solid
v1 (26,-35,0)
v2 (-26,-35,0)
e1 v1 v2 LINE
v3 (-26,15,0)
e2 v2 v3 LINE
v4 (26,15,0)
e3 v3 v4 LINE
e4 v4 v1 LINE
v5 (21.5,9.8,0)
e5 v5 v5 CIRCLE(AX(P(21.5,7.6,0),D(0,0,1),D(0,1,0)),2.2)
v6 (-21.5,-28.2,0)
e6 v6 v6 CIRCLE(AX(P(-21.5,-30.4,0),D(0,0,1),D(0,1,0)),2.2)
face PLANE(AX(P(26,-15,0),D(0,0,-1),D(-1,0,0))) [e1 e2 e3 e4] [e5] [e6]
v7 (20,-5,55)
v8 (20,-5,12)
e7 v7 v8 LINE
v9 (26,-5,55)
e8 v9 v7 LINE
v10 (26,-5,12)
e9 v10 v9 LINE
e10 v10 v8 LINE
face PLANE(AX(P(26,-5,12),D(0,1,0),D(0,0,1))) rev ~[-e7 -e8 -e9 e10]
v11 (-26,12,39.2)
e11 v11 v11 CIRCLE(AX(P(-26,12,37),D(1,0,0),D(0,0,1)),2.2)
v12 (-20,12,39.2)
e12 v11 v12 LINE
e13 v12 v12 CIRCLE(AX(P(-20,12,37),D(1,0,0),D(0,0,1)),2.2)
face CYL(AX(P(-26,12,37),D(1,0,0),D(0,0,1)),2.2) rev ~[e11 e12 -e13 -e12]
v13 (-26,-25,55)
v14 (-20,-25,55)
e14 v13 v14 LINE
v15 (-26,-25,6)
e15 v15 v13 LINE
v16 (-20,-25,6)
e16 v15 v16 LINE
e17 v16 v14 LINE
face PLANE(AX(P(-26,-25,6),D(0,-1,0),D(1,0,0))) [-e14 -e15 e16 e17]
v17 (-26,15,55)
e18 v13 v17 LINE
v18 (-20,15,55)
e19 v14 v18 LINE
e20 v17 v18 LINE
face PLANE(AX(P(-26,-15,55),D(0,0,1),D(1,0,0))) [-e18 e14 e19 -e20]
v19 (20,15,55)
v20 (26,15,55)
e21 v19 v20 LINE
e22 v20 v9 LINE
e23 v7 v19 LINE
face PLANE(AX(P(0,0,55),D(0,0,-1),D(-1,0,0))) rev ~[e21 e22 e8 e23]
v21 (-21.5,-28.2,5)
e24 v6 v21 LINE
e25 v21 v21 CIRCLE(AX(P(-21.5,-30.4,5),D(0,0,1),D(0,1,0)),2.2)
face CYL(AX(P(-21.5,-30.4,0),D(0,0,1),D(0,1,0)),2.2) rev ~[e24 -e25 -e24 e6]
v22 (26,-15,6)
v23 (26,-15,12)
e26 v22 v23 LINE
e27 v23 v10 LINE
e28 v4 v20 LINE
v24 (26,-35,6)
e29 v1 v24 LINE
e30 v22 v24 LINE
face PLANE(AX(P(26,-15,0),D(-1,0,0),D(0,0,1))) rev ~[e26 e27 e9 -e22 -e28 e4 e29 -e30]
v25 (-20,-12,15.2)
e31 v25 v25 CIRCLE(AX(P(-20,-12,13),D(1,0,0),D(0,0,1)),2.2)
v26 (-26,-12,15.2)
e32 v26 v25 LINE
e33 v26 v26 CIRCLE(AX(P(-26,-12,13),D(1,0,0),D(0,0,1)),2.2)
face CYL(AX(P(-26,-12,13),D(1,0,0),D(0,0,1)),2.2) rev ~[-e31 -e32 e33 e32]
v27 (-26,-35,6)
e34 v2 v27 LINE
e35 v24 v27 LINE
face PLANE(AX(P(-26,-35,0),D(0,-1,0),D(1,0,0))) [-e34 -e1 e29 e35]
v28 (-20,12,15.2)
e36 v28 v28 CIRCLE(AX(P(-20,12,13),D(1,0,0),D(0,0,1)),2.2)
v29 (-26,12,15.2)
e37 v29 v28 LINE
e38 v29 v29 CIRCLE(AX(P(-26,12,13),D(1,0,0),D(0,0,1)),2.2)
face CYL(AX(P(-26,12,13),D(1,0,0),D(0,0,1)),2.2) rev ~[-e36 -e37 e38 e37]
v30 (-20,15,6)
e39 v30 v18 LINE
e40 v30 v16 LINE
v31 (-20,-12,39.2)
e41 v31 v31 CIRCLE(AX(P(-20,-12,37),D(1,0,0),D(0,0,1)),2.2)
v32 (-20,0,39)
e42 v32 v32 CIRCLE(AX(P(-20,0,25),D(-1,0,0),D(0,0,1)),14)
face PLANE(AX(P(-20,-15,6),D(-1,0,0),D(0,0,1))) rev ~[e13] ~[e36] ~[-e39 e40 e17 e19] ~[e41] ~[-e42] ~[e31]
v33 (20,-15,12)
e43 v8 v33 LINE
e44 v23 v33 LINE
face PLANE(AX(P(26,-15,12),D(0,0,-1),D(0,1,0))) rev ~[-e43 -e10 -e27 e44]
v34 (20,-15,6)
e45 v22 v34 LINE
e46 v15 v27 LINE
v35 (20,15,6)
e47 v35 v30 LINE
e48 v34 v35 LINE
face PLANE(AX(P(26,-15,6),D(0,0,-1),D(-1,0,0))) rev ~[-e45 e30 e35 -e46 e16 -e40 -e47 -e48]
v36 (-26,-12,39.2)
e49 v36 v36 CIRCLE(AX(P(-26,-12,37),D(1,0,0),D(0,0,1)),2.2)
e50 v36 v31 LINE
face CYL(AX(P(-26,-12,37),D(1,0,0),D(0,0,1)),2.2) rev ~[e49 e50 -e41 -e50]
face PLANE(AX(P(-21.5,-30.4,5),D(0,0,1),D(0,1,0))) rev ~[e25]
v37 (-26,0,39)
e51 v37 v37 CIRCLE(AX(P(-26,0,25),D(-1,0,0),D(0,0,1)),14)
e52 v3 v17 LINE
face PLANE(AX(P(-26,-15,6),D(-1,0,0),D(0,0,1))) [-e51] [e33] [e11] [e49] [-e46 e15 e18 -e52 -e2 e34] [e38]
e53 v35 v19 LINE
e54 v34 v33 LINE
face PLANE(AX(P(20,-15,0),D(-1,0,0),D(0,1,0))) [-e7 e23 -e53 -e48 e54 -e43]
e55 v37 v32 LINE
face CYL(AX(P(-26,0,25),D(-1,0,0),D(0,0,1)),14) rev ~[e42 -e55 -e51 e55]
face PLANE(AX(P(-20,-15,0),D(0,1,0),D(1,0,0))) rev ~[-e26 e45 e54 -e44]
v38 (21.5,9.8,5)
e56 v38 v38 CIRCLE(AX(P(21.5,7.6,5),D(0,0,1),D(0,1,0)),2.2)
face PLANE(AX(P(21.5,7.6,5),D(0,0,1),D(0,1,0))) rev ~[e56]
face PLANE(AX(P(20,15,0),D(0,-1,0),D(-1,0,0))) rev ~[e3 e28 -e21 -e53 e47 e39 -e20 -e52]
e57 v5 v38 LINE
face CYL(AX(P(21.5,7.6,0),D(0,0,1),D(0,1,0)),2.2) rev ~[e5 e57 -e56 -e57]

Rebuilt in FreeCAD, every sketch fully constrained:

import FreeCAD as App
import Part
import Sketcher


def add_polygon(sketch, points):
    """Adds a closed chain of lines whose ends are joined by coincident constraints."""
    first, n = sketch.GeometryCount, len(points)
    for a, b in zip(points, points[1:] + points[:1]):
        sketch.addGeometry(Part.LineSegment(App.Vector(*a, 0), App.Vector(*b, 0)), False)
    for i in range(n):
        sketch.addConstraint(Sketcher.Constraint("Coincident", first + i, 2, first + (i + 1) % n, 1))

doc = App.newDocument("Part")
body = doc.addObject("PartDesign::Body", "Body")

# Sketch on XY plane
sketch1 = doc.addObject("Sketcher::SketchObject", "Sketch")
body.addObject(sketch1)
sketch1.AttachmentSupport = (doc.XY_Plane, [""])
sketch1.MapMode = "FlatFace"
add_polygon(sketch1, [(-20, 15), (-20, -15), (20, -15), (20, 15)])  # lines 0-3
sketch1.addConstraint([
    Sketcher.Constraint("Vertical", 0),
    Sketcher.Constraint("Horizontal", 1),
    Sketcher.Constraint("Vertical", 2),
    Sketcher.Constraint("Horizontal", 3),
    Sketcher.Constraint("Symmetric", 0, 2, 2, 2, -1, 1),
    Sketcher.Constraint("DistanceX", 1, 1, 1, 2, 40.0),
    Sketcher.Constraint("DistanceY", 0, 2, 0, 1, 30.0),
])
pad1 = doc.addObject("PartDesign::Pad", "Pad")
body.addObject(pad1)
pad1.Profile = sketch1
pad1.Length = 6

# Sketch on XY plane
sketch2 = doc.addObject("Sketcher::SketchObject", "Sketch001")
body.addObject(sketch2)
sketch2.AttachmentSupport = (doc.XY_Plane, [""])
sketch2.MapMode = "FlatFace"
add_polygon(sketch2, [(26, -15), (20, -15), (20, 15), (26, 15)])  # lines 0-3
add_polygon(sketch2, [(-26, 15), (-20, 15), (-20, -15), (-26, -15)])  # lines 4-7
sketch2.addConstraint([
    Sketcher.Constraint("Horizontal", 0),
    Sketcher.Constraint("Vertical", 1),
    Sketcher.Constraint("Horizontal", 2),
    Sketcher.Constraint("Vertical", 3),
    Sketcher.Constraint("Horizontal", 4),
    Sketcher.Constraint("Vertical", 5),
    Sketcher.Constraint("Horizontal", 6),
    Sketcher.Constraint("Vertical", 7),
    Sketcher.Constraint("Symmetric", 0, 2, 4, 2, -1, 1),
    Sketcher.Constraint("Symmetric", 2, 2, 6, 2, -1, 1),
    Sketcher.Constraint("Horizontal", 2, 2, 4, 2),
    Sketcher.Constraint("DistanceX", 0, 2, 0, 1, 6.0),
    Sketcher.Constraint("DistanceY", 1, 1, 1, 2, 30.0),
    Sketcher.Constraint("DistanceX", -1, 1, 0, 2, 20.0),
])
pad2 = doc.addObject("PartDesign::Pad", "Pad001")
body.addObject(pad2)
pad2.Profile = sketch2
pad2.Length = 55

# Sketch on XZ plane
sketch3 = doc.addObject("Sketcher::SketchObject", "Sketch002")
body.addObject(sketch3)
sketch3.AttachmentSupport = (doc.XZ_Plane, [""])
sketch3.MapMode = "FlatFace"
sketch3.AttachmentOffset = App.Placement(App.Vector(0, 0, 15), App.Rotation())
add_polygon(sketch3, [(-26, 0), (26, 0), (26, 6), (-26, 6)])  # lines 0-3
sketch3.addConstraint([
    Sketcher.Constraint("Horizontal", 0),
    Sketcher.Constraint("Vertical", 1),
    Sketcher.Constraint("Horizontal", 2),
    Sketcher.Constraint("Vertical", 3),
    Sketcher.Constraint("Symmetric", 0, 2, 3, 2, -1, 1),
    Sketcher.Constraint("DistanceX", 0, 1, 0, 2, 52.0),
    Sketcher.Constraint("DistanceY", 1, 1, 1, 2, 6.0),
])
pad3 = doc.addObject("PartDesign::Pad", "Pad002")
body.addObject(pad3)
pad3.Profile = sketch3
pad3.Length = 20

# Sketch on XY plane
sketch4 = doc.addObject("Sketcher::SketchObject", "Sketch003")
body.addObject(sketch4)
sketch4.AttachmentSupport = (doc.XY_Plane, [""])
sketch4.MapMode = "FlatFace"
sketch4.addGeometry([
    Part.Circle(App.Vector(-21.5, -30.4, 0), App.Vector(0, 0, 1), 2.2),
    Part.Circle(App.Vector(21.5, 7.6, 0), App.Vector(0, 0, 1), 2.2),
], False)
sketch4.addConstraint([
    Sketcher.Constraint("Equal", 0, 1),
    Sketcher.Constraint("Diameter", 0, 4.4),
    Sketcher.Constraint("DistanceX", 0, 3, 1, 3, 43.0),
    Sketcher.Constraint("DistanceY", 0, 3, 1, 3, 38.0),
    Sketcher.Constraint("DistanceX", 0, 3, -1, 1, 21.5),
    Sketcher.Constraint("DistanceY", 0, 3, -1, 1, 30.4),
])
doc.recompute()
hole = doc.addObject("PartDesign::Hole", "Hole")
body.addObject(hole)
hole.Profile = sketch4
hole.ThreadType = "None"
hole.Diameter = 4.4
hole.DepthType = "Dimension"
hole.Depth = 5
hole.DrillPoint = "Flat"
hole.Reversed = True

# Sketch on YZ plane
sketch5 = doc.addObject("Sketcher::SketchObject", "Sketch004")
body.addObject(sketch5)
sketch5.AttachmentSupport = (doc.YZ_Plane, [""])
sketch5.MapMode = "FlatFace"
sketch5.AttachmentOffset = App.Placement(App.Vector(0, 0, -26), App.Rotation())
sketch5.addGeometry(Part.Circle(App.Vector(0, 25, 0), App.Vector(0, 0, 1), 14), False)
sketch5.addConstraint([
    Sketcher.Constraint("PointOnObject", 0, 3, -2),
    Sketcher.Constraint("Diameter", 0, 28.0),
    Sketcher.Constraint("DistanceY", -1, 1, 0, 3, 25.0),
])
pocket1 = doc.addObject("PartDesign::Pocket", "Pocket")
body.addObject(pocket1)
pocket1.Profile = sketch5
pocket1.Length = 10
pocket1.Reversed = True

# Sketch on YZ plane
sketch6 = doc.addObject("Sketcher::SketchObject", "Sketch005")
body.addObject(sketch6)
sketch6.AttachmentSupport = (doc.YZ_Plane, [""])
sketch6.MapMode = "FlatFace"
sketch6.AttachmentOffset = App.Placement(App.Vector(0, 0, -26), App.Rotation())
sketch6.addGeometry([
    Part.Circle(App.Vector(-12, 37, 0), App.Vector(0, 0, 1), 2.2),
    Part.Circle(App.Vector(12, 37, 0), App.Vector(0, 0, 1), 2.2),
    Part.Circle(App.Vector(12, 13, 0), App.Vector(0, 0, 1), 2.2),
    Part.Circle(App.Vector(-12, 13, 0), App.Vector(0, 0, 1), 2.2),
], False)
sketch6.addConstraint([
    Sketcher.Constraint("Equal", 0, 1),
    Sketcher.Constraint("Equal", 1, 2),
    Sketcher.Constraint("Equal", 2, 3),
    Sketcher.Constraint("Symmetric", 0, 3, 1, 3, -2),
    Sketcher.Constraint("Symmetric", 2, 3, 3, 3, -2),
    Sketcher.Constraint("Vertical", 1, 3, 2, 3),
    Sketcher.Constraint("Diameter", 0, 4.4),
    Sketcher.Constraint("DistanceX", 0, 3, -1, 1, 12.0),
    Sketcher.Constraint("DistanceY", -1, 1, 0, 3, 37.0),
    Sketcher.Constraint("DistanceY", -1, 1, 2, 3, 13.0),
])
doc.recompute()
hole2 = doc.addObject("PartDesign::Hole", "Hole001")
body.addObject(hole2)
hole2.Profile = sketch6
hole2.ThreadType = "None"
hole2.Diameter = 4.4
hole2.DepthType = "Dimension"
hole2.Depth = 8.8
hole2.DrillPoint = "Angled"
hole2.DrillPointAngle = 118
hole2.Reversed = True

# Sketch on YZ plane
sketch7 = doc.addObject("Sketcher::SketchObject", "Sketch006")
body.addObject(sketch7)
sketch7.AttachmentSupport = (doc.YZ_Plane, [""])
sketch7.MapMode = "FlatFace"
sketch7.AttachmentOffset = App.Placement(App.Vector(0, 0, 26), App.Rotation())
add_polygon(sketch7, [(-5, 55), (-15, 55), (-15, 12), (-5, 12)])  # lines 0-3
sketch7.addConstraint([
    Sketcher.Constraint("Horizontal", 0),
    Sketcher.Constraint("Vertical", 1),
    Sketcher.Constraint("Horizontal", 2),
    Sketcher.Constraint("Vertical", 3),
    Sketcher.Constraint("DistanceX", 0, 2, 0, 1, 10.0),
    Sketcher.Constraint("DistanceY", 1, 2, 1, 1, 43.0),
    Sketcher.Constraint("DistanceX", 0, 2, -1, 1, 15.0),
    Sketcher.Constraint("DistanceY", -1, 1, 0, 2, 55.0),
])
pocket2 = doc.addObject("PartDesign::Pocket", "Pocket001")
body.addObject(pocket2)
pocket2.Profile = sketch7
pocket2.Length = 10

# Sketch on XZ plane
sketch8 = doc.addObject("Sketcher::SketchObject", "Sketch007")
body.addObject(sketch8)
sketch8.AttachmentSupport = (doc.XZ_Plane, [""])
sketch8.MapMode = "FlatFace"
sketch8.AttachmentOffset = App.Placement(App.Vector(0, 0, 15), App.Rotation())
add_polygon(sketch8, [(-26, 55), (-26, 6), (-20, 6), (-20, 55)])  # lines 0-3
sketch8.addConstraint([
    Sketcher.Constraint("Vertical", 0),
    Sketcher.Constraint("Horizontal", 1),
    Sketcher.Constraint("Vertical", 2),
    Sketcher.Constraint("Horizontal", 3),
    Sketcher.Constraint("DistanceX", 1, 1, 1, 2, 6.0),
    Sketcher.Constraint("DistanceY", 0, 2, 0, 1, 49.0),
    Sketcher.Constraint("DistanceX", 0, 2, -1, 1, 26.0),
    Sketcher.Constraint("DistanceY", -1, 1, 0, 2, 6.0),
])
pad4 = doc.addObject("PartDesign::Pad", "Pad003")
body.addObject(pad4)
pad4.Profile = sketch8
pad4.Length = 10

doc.recompute()
